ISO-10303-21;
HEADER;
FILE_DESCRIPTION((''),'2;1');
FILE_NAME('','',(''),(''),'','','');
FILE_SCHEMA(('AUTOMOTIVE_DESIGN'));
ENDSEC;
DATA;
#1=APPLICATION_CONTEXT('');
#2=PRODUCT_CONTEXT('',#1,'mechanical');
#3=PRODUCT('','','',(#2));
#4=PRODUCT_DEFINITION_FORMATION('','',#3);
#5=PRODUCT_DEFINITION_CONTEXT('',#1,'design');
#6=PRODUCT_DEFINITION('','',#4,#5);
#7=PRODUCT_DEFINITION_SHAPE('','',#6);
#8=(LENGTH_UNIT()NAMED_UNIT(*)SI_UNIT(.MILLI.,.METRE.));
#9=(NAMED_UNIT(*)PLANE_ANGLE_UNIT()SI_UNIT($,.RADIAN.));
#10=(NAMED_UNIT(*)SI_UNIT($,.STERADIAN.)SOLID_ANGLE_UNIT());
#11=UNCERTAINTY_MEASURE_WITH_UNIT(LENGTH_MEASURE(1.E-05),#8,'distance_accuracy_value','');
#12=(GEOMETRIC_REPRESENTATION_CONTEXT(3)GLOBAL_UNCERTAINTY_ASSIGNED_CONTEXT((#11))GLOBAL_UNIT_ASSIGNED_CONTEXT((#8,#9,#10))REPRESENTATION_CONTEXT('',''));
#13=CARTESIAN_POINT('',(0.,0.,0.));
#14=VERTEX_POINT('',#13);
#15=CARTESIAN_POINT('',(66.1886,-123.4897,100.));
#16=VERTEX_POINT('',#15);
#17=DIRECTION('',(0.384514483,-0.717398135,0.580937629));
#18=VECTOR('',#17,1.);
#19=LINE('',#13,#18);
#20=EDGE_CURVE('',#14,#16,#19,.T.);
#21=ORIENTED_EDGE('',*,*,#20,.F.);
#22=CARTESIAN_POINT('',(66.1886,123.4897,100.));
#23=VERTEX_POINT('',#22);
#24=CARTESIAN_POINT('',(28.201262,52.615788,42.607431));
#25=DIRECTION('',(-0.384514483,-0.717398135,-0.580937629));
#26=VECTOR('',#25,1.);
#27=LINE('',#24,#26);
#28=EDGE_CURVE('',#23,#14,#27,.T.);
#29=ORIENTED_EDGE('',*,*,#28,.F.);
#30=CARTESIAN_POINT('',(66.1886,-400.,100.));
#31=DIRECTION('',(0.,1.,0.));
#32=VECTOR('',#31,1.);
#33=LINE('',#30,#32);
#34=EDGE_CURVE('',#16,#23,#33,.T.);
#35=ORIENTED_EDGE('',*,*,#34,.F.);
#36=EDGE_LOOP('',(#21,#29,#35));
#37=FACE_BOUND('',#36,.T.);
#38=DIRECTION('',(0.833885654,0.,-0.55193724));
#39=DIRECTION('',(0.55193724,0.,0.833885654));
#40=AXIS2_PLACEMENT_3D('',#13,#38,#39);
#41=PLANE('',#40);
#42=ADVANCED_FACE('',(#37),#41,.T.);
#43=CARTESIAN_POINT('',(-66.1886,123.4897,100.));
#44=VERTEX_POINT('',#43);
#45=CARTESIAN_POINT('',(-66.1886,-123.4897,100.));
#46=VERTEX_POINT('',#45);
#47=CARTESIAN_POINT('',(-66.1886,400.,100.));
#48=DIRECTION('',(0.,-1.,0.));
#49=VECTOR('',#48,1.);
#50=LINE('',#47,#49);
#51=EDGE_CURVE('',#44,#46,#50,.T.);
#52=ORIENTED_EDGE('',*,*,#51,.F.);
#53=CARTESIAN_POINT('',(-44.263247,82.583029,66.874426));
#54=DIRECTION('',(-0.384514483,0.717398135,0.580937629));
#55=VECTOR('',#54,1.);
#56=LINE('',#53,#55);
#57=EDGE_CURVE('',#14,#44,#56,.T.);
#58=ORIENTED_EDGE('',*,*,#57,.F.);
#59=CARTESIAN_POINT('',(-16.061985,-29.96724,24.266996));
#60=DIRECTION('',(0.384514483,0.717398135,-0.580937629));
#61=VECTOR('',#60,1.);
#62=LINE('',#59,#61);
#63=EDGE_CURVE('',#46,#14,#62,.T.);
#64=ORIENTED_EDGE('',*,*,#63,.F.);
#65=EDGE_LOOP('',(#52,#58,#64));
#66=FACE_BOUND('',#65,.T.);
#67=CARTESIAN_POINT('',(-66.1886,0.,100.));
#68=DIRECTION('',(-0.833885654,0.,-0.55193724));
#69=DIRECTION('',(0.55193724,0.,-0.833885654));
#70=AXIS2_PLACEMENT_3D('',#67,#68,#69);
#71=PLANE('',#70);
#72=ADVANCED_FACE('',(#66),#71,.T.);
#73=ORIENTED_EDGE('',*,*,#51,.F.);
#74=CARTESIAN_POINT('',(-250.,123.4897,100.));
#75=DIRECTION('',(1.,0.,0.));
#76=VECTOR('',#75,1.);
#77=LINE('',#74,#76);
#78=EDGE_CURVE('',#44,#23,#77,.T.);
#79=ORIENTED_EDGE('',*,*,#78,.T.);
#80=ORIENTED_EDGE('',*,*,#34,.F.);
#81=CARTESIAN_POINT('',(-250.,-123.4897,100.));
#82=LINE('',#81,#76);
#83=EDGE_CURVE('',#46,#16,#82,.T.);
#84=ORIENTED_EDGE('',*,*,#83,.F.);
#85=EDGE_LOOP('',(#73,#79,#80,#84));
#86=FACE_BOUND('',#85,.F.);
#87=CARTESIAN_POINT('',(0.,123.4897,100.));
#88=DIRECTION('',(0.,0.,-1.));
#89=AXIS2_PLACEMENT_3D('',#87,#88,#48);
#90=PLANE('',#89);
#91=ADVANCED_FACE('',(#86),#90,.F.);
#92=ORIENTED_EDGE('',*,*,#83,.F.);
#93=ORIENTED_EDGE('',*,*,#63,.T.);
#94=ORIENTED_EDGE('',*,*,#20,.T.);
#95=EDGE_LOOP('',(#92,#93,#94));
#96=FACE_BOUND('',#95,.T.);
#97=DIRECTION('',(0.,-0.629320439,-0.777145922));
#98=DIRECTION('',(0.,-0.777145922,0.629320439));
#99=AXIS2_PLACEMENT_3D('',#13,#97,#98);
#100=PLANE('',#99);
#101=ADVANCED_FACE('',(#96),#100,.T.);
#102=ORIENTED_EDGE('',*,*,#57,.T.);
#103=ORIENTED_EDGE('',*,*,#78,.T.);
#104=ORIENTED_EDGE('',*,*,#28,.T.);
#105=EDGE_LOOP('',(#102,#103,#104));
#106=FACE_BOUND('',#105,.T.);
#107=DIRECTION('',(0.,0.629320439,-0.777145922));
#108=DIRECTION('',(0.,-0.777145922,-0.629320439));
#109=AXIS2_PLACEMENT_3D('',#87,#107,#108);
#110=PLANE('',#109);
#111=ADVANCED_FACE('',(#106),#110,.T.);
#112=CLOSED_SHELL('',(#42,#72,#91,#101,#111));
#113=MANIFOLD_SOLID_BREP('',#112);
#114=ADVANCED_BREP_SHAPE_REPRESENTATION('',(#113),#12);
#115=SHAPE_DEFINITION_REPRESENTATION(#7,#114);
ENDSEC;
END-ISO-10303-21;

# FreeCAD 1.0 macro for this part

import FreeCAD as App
import Part
import Sketcher
from FreeCAD import Vector
Q = App.Units.Quantity

doc = App.newDocument("Part")
body = doc.addObject("PartDesign::Body", "Body")

# Sketch on YZ plane
sketch1 = body.newObject("Sketcher::SketchObject", "Sketch")
sketch1.AttachmentSupport = (doc.getObject("YZ_Plane"), [""])
sketch1.MapMode = "FlatFace"
sketch1.addGeometry([
    Part.LineSegment(Vector(0, 0, 0), Vector(123, 100, 0)),
    Part.LineSegment(Vector(123, 100, 0), Vector(-123, 100, 0)),
    Part.LineSegment(Vector(-123, 100, 0), Vector(0, 0, 0)),
], False)
sketch1.addConstraint([
    Sketcher.Constraint("Coincident", 0, 2, 1, 1),
    Sketcher.Constraint("Coincident", 1, 2, 2, 1),
    Sketcher.Constraint("Coincident", 2, 2, 0, 1),
    Sketcher.Constraint("Horizontal", 1),
    Sketcher.Constraint("Coincident", 2, 2, -1, 1),
    Sketcher.Constraint("Equal", 0, 2),
    Sketcher.Constraint("Angle", 0, Q("39 deg")),
    Sketcher.Constraint("DistanceY", -1, 1, 0, 2, Q("100 mm")),
])
pad1 = body.newObject("PartDesign::Pad", "Pad")
pad1.Profile = sketch1
pad1.Length = 500
pad1.Midplane = True

# Sketch on XZ plane
sketch2 = body.newObject("Sketcher::SketchObject", "Sketch001")
sketch2.AttachmentSupport = (doc.getObject("XZ_Plane"), [""])
sketch2.MapMode = "FlatFace"
sketch2.addGeometry([
    Part.LineSegment(Vector(0, 0, 0), Vector(-250, 0, 0)),  # 0
    Part.LineSegment(Vector(-250, 0, 0), Vector(-250, 100, 0)),  # 1
    Part.LineSegment(Vector(-250, 100, 0), Vector(-66, 100, 0)),  # 2
    Part.LineSegment(Vector(-66, 100, 0), Vector(0, 0, 0)),  # 3
    Part.LineSegment(Vector(250, 0, 0), Vector(0, 0, 0)),  # 4
    Part.LineSegment(Vector(0, 0, 0), Vector(66, 100, 0)),  # 5
    Part.LineSegment(Vector(66, 100, 0), Vector(250, 100, 0)),  # 6
    Part.LineSegment(Vector(250, 100, 0), Vector(250, 0, 0)),  # 7
], False)
sketch2.addConstraint([
    Sketcher.Constraint("Coincident", 0, 2, 1, 1),
    Sketcher.Constraint("Coincident", 1, 2, 2, 1),
    Sketcher.Constraint("Coincident", 2, 2, 3, 1),
    Sketcher.Constraint("Coincident", 3, 2, 0, 1),
    Sketcher.Constraint("Coincident", 4, 2, 5, 1),
    Sketcher.Constraint("Coincident", 5, 2, 6, 1),
    Sketcher.Constraint("Coincident", 6, 2, 7, 1),
    Sketcher.Constraint("Coincident", 7, 2, 4, 1),
    Sketcher.Constraint("Horizontal", 0),
    Sketcher.Constraint("Vertical", 1),
    Sketcher.Constraint("Horizontal", 2),
    Sketcher.Constraint("Horizontal", 4),
    Sketcher.Constraint("Horizontal", 6),
    Sketcher.Constraint("Vertical", 7),
    Sketcher.Constraint("Coincident", 3, 2, -1, 1),
    Sketcher.Constraint("Coincident", 4, 2, -1, 1),
    Sketcher.Constraint("Symmetric", 2, 2, 5, 2, -2),
    Sketcher.Constraint("Equal", 0, 4),
    Sketcher.Constraint("DistanceX", 0, 2, 0, 1, Q("250 mm")),
    Sketcher.Constraint("DistanceY", 1, 1, 1, 2, Q("100 mm")),
    Sketcher.Constraint("Angle", 3, Q("-56.5 deg")),
])
pocket1 = body.newObject("PartDesign::Pocket", "Pocket")
pocket1.Profile = sketch2
pocket1.Length = 800
pocket1.Midplane = True

doc.recompute()
